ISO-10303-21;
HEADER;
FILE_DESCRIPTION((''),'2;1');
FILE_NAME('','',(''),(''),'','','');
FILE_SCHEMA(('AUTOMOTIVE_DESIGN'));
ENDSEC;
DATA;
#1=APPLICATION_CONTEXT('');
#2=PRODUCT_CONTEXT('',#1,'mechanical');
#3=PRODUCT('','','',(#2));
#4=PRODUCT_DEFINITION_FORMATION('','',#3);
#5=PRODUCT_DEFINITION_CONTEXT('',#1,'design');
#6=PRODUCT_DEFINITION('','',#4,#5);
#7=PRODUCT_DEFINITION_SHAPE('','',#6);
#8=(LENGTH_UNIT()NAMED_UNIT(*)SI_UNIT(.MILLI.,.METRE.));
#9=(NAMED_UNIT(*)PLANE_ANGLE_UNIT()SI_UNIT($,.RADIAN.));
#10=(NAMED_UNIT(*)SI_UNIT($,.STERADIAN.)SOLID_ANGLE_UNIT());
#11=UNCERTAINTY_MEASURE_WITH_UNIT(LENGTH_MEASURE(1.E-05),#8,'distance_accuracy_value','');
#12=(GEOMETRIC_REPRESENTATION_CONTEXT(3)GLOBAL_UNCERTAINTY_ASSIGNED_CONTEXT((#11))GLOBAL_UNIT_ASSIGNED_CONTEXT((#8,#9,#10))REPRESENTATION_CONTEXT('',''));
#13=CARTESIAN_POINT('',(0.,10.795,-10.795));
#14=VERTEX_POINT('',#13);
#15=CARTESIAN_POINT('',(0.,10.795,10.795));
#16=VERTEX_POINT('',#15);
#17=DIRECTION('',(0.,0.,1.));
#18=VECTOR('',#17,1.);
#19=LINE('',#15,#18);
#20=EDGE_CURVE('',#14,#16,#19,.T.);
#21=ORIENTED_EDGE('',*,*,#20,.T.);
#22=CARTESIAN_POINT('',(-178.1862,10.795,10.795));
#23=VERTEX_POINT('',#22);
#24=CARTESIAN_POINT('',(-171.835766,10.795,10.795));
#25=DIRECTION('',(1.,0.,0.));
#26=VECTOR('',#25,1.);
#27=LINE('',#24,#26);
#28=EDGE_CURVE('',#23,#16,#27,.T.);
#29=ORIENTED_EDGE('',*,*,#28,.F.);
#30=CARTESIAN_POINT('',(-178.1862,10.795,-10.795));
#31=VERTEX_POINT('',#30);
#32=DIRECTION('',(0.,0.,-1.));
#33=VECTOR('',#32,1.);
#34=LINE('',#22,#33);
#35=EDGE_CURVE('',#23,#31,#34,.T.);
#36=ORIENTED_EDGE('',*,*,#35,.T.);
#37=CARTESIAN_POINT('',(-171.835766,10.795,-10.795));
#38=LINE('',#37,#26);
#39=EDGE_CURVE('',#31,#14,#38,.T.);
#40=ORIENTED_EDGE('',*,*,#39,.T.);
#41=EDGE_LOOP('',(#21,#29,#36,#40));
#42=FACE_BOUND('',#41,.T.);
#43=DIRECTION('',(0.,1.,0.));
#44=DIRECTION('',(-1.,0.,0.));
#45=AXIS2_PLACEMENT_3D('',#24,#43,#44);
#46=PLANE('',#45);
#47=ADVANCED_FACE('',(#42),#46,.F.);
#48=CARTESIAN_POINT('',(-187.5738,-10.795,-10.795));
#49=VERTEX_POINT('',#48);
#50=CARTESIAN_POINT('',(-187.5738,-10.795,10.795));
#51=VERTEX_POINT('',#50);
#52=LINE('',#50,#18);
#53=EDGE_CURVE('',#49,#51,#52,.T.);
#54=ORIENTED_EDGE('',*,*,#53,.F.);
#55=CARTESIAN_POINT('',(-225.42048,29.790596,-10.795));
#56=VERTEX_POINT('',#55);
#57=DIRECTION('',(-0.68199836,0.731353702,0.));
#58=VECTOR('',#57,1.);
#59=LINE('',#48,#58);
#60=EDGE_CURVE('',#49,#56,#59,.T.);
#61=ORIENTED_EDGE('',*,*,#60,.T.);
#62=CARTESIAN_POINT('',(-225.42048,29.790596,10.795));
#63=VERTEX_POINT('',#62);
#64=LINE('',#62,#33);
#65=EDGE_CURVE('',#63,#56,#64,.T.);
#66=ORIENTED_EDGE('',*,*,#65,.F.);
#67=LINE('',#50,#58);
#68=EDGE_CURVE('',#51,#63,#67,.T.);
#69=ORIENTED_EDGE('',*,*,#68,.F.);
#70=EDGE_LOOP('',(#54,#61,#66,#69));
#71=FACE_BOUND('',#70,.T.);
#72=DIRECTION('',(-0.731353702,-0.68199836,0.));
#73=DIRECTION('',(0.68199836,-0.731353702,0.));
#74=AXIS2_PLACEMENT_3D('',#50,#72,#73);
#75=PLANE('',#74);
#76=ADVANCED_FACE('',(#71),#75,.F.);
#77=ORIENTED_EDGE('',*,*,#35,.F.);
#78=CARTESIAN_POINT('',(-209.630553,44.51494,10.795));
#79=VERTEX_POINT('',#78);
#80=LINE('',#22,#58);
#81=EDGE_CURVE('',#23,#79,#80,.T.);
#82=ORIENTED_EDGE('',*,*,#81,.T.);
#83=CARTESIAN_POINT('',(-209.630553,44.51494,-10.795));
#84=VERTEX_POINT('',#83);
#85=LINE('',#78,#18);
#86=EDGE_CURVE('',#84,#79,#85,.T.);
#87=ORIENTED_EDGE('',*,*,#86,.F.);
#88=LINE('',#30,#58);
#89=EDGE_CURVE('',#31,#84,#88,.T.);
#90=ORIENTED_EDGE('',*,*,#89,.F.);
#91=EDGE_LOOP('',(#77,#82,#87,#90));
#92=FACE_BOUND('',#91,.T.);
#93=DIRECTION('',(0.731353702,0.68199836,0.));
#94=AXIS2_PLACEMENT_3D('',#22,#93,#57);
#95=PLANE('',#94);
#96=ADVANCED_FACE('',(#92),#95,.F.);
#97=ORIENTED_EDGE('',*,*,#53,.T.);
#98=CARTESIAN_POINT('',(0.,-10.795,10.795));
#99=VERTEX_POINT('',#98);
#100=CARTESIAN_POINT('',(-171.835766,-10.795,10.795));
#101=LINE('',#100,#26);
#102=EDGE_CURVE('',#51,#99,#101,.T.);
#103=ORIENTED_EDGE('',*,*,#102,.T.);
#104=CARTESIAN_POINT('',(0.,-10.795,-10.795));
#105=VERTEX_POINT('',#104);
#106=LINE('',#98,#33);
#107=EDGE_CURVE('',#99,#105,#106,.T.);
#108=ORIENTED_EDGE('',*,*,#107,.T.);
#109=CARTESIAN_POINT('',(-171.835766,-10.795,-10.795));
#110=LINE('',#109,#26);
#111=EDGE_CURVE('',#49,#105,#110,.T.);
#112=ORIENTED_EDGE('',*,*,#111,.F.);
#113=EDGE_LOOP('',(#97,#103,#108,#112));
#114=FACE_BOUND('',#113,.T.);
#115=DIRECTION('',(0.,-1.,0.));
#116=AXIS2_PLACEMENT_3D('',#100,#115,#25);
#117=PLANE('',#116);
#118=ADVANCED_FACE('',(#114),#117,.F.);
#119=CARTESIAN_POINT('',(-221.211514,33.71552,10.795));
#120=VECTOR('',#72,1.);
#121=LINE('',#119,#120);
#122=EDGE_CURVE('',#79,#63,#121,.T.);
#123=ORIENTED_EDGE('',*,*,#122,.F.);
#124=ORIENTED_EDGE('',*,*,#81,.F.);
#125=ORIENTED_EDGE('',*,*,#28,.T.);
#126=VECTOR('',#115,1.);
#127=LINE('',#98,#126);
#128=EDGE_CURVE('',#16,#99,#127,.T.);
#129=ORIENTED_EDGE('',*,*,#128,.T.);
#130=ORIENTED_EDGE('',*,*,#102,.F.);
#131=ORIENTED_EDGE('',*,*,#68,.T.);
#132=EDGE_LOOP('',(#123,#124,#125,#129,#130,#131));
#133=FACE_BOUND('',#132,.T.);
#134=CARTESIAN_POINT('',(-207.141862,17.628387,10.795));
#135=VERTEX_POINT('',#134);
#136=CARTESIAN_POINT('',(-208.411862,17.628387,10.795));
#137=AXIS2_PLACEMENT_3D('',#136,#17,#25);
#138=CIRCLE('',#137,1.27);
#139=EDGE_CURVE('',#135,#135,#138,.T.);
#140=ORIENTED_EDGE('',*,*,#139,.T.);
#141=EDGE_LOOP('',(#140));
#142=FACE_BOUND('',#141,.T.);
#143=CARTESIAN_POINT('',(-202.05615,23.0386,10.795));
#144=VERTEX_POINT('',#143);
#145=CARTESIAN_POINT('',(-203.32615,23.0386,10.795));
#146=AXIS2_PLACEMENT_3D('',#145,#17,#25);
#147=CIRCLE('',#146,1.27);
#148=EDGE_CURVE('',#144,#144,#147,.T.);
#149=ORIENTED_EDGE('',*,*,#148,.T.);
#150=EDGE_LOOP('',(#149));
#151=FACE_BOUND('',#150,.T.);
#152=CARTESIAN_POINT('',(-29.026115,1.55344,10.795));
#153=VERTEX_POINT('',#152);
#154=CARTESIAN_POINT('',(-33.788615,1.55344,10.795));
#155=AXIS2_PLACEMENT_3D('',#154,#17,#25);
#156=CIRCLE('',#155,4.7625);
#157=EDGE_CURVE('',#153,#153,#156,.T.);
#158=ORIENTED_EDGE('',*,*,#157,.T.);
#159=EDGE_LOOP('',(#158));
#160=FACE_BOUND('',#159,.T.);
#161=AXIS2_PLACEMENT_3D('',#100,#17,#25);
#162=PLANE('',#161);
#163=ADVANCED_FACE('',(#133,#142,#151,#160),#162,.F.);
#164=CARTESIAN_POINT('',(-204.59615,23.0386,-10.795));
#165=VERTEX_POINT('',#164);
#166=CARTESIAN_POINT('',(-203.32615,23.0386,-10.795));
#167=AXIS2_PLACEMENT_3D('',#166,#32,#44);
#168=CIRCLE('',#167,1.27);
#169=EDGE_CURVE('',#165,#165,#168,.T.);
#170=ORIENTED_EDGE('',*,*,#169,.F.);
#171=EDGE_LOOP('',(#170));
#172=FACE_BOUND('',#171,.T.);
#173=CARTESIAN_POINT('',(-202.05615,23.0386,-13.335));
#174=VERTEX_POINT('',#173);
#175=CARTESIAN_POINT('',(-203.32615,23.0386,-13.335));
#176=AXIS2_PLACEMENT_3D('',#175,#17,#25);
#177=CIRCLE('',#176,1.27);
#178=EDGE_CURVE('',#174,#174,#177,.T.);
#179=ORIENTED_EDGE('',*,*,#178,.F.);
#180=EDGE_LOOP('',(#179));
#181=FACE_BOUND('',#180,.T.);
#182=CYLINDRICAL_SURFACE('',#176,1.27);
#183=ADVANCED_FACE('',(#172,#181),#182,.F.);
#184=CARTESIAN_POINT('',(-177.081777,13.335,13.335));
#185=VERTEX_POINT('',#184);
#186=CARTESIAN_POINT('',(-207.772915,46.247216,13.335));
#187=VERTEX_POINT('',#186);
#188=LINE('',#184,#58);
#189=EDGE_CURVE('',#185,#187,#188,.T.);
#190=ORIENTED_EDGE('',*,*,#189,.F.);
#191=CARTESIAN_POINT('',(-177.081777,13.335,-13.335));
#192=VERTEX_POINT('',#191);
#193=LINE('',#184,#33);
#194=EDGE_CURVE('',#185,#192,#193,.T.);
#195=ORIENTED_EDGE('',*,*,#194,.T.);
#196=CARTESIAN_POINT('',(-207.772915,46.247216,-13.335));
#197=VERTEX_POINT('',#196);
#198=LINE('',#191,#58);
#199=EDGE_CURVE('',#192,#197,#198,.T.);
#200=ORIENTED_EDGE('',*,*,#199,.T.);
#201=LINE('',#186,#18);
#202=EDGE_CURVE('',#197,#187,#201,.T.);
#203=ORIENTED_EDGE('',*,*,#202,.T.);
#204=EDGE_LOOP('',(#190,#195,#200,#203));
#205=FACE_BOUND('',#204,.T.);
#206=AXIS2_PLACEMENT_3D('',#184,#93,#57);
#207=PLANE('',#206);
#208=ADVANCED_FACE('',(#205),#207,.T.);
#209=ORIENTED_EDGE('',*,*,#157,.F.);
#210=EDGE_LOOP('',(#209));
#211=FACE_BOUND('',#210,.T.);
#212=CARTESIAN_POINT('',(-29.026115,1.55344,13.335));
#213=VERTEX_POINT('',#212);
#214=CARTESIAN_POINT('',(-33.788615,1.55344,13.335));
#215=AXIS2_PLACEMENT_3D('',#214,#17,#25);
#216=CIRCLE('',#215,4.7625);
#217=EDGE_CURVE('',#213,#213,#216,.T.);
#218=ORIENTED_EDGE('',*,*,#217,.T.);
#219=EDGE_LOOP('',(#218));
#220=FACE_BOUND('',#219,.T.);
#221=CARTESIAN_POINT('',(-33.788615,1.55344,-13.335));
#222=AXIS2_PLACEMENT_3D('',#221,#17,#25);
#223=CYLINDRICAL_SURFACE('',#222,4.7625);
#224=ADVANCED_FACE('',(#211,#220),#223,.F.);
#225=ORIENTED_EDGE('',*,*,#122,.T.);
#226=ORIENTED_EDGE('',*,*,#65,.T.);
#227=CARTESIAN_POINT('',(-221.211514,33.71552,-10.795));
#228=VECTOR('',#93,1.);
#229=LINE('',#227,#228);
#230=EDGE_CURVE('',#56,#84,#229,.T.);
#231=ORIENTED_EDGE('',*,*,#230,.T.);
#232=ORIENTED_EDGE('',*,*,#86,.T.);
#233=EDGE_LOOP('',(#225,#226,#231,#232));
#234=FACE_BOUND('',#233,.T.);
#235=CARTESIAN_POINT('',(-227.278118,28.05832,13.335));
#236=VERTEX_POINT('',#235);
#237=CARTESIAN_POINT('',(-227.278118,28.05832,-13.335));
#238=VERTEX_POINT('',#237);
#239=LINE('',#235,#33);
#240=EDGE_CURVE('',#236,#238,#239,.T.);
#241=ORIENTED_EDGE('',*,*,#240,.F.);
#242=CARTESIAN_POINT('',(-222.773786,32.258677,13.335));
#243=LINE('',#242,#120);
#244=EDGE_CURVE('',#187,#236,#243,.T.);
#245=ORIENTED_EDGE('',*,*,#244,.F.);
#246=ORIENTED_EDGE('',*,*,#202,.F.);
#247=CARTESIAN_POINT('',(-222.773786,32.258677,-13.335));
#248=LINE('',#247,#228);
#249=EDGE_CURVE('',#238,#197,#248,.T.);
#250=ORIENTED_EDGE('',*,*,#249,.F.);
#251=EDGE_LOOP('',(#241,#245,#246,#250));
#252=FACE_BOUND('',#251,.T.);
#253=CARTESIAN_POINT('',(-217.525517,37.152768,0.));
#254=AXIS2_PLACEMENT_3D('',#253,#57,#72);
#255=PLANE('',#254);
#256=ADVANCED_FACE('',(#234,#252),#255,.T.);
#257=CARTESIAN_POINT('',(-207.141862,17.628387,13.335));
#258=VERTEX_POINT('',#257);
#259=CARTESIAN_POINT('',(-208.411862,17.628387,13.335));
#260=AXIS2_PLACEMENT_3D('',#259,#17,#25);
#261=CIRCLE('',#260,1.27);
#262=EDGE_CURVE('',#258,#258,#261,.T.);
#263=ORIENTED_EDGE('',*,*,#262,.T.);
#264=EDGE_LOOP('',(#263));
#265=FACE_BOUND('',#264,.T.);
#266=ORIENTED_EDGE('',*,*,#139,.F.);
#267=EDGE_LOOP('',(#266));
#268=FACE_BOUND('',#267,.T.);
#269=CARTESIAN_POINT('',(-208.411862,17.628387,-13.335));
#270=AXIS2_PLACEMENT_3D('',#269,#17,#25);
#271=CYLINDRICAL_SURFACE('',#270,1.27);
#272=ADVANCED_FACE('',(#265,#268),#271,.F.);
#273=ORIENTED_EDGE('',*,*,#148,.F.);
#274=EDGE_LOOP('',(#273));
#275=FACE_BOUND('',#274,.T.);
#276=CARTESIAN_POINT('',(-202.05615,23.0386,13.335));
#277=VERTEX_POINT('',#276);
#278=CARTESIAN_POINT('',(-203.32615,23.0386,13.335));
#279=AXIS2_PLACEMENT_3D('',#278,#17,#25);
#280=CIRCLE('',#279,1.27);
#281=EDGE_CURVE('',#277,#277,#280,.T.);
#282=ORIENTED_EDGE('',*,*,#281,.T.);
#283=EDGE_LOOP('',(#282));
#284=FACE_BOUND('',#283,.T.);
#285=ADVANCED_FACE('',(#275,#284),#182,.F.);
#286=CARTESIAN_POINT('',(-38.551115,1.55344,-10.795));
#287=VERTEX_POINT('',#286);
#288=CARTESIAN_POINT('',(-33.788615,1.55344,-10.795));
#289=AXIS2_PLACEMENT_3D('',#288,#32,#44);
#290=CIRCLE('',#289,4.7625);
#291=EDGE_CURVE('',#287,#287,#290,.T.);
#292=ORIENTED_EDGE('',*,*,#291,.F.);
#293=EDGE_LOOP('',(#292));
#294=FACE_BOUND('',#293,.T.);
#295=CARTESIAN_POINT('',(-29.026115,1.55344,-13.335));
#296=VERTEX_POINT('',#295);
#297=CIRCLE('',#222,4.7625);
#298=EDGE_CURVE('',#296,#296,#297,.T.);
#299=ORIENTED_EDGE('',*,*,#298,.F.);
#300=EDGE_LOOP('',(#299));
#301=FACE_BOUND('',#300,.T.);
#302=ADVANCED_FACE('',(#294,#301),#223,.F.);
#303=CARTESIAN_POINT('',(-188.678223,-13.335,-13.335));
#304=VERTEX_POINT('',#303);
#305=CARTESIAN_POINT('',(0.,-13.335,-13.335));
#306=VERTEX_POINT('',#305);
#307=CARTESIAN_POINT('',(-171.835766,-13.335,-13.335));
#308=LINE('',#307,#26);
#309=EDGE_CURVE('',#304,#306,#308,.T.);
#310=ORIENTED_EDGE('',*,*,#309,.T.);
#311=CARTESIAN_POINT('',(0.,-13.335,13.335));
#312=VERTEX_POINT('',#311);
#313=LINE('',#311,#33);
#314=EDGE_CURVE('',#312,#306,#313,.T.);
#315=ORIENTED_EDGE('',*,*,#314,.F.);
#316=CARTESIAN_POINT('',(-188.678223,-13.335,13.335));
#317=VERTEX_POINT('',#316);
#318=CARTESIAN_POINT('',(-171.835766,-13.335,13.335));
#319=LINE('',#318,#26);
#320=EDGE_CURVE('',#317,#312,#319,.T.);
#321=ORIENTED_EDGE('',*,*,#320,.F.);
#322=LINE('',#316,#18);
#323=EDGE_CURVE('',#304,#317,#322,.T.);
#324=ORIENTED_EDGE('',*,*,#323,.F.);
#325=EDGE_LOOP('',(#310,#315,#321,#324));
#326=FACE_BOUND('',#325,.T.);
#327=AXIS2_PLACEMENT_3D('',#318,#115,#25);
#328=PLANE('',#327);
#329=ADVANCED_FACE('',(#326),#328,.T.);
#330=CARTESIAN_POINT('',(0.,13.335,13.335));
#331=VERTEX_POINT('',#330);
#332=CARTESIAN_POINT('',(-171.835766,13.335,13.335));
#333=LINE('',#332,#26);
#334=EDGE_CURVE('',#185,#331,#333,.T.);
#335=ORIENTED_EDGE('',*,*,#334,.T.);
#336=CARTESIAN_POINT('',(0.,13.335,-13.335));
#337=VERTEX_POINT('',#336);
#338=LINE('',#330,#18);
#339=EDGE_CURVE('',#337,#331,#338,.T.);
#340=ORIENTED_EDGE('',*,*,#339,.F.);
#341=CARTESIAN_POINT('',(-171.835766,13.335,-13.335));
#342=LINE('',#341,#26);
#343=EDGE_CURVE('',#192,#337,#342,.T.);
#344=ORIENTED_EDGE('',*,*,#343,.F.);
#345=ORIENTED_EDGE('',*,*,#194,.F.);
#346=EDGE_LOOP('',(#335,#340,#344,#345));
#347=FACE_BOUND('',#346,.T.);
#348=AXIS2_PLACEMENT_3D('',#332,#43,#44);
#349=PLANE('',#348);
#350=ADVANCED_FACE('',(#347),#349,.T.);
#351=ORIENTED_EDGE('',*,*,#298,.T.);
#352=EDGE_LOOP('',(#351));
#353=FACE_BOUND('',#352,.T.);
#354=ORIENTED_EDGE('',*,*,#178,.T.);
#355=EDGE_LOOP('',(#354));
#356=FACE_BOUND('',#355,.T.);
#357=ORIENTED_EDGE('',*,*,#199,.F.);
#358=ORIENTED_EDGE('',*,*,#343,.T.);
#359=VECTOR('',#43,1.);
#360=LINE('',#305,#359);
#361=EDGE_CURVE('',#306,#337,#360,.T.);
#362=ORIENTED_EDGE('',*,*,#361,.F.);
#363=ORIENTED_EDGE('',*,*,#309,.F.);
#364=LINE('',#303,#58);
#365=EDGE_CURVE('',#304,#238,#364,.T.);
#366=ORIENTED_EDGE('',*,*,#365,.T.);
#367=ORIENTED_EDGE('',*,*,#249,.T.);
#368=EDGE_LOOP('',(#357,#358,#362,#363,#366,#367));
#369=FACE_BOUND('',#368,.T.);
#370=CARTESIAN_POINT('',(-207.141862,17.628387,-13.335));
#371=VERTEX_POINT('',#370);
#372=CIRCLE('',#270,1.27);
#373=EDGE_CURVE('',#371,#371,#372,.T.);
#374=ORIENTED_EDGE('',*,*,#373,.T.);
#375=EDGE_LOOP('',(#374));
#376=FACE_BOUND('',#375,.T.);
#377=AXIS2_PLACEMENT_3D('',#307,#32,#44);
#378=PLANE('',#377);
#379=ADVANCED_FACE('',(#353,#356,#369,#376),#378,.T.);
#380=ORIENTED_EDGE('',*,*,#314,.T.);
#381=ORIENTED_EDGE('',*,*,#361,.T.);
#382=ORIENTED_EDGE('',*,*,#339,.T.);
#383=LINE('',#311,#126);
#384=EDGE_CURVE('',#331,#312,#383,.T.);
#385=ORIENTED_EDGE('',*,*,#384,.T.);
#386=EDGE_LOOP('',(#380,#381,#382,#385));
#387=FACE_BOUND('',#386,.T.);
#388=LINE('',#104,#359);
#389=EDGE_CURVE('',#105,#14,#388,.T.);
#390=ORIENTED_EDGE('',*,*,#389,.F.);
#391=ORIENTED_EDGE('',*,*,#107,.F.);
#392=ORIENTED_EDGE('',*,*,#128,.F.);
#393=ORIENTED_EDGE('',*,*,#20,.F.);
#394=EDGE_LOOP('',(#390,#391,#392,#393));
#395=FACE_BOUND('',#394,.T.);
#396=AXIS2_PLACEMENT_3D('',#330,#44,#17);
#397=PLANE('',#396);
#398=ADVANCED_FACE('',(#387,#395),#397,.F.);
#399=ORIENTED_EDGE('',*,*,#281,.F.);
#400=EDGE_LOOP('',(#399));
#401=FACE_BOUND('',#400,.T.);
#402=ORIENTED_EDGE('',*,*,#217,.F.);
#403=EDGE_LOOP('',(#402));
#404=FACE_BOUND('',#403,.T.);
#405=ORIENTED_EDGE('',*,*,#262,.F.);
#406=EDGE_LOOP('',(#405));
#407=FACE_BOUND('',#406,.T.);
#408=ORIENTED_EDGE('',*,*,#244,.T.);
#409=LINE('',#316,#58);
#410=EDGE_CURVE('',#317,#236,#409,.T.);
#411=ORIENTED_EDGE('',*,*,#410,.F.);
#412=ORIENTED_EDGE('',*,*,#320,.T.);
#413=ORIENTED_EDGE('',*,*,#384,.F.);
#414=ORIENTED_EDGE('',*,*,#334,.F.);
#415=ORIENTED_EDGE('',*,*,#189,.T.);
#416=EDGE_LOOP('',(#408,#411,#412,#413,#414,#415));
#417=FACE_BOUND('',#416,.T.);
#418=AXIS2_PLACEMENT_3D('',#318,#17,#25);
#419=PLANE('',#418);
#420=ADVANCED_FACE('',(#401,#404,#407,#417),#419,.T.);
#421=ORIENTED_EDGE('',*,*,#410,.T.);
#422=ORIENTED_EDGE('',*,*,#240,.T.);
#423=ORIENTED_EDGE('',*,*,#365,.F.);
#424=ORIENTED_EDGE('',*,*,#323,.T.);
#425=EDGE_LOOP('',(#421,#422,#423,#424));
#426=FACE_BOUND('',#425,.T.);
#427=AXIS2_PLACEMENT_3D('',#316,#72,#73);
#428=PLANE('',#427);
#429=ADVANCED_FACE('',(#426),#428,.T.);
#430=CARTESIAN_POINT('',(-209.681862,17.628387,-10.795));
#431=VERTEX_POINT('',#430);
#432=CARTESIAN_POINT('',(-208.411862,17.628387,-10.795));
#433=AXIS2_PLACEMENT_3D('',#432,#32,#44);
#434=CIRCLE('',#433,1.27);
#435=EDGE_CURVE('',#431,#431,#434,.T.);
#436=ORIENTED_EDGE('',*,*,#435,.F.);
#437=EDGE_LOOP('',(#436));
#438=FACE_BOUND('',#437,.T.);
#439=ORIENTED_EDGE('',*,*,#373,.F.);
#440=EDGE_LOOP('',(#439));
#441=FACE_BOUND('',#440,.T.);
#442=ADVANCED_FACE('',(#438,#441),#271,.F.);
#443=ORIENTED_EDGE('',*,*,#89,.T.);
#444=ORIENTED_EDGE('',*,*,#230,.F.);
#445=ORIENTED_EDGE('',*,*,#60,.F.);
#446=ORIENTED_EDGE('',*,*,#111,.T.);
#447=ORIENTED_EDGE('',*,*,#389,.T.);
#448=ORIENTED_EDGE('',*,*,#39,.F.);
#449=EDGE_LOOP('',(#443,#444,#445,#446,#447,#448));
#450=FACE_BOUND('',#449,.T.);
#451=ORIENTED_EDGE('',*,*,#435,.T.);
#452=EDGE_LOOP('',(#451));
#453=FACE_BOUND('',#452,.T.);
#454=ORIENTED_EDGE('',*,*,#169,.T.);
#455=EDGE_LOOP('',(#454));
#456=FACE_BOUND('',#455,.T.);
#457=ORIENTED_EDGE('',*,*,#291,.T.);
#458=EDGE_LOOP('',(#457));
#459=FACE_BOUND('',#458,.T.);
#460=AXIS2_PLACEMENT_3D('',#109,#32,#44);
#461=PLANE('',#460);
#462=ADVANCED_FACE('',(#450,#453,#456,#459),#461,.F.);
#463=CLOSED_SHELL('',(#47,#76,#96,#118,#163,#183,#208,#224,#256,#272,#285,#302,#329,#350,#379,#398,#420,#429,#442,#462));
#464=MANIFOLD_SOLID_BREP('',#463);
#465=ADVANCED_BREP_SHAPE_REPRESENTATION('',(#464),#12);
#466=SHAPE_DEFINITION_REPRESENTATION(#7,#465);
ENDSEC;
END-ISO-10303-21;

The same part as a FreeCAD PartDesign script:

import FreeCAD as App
import Part
import Sketcher

V = App.Vector
Q = App.Units.Quantity


def add_polygon(sketch, points):
    """Adds a closed chain of lines whose ends are joined by coincident constraints."""
    first, n = sketch.GeometryCount, len(points)
    for a, b in zip(points, points[1:] + points[:1]):
        sketch.addGeometry(Part.LineSegment(App.Vector(*a, 0), App.Vector(*b, 0)), False)
    for i in range(n):
        sketch.addConstraint(Sketcher.Constraint("Coincident", first + i, 2, first + (i + 1) % n, 1))

doc = App.newDocument("Part")
body = doc.addObject("PartDesign::Body", "Body")

# Sketch on YZ plane
sketch1 = body.newObject("Sketcher::SketchObject", "Sketch")
sketch1.AttachmentSupport = (doc.getObject("YZ_Plane"), [""])
sketch1.MapMode = "FlatFace"
add_polygon(sketch1, [(13, 13), (-13, 13), (-13, -13), (13, -13)])  # lines 0-3
add_polygon(sketch1, [(-11, -11), (-11, 11), (11, 11), (11, -11)])  # lines 4-7
sketch1.addConstraint(Sketcher.Constraint("Horizontal", 0))
sketch1.addConstraint(Sketcher.Constraint("Vertical", 1))
sketch1.addConstraint(Sketcher.Constraint("Horizontal", 2))
sketch1.addConstraint(Sketcher.Constraint("Vertical", 3))
sketch1.addConstraint(Sketcher.Constraint("Vertical", 4))
sketch1.addConstraint(Sketcher.Constraint("Horizontal", 5))
sketch1.addConstraint(Sketcher.Constraint("Vertical", 6))
sketch1.addConstraint(Sketcher.Constraint("Horizontal", 7))
sketch1.addConstraint(Sketcher.Constraint("Symmetric", 0, 2, 2, 2, -1, 1))
sketch1.addConstraint(Sketcher.Constraint("Symmetric", 4, 2, 6, 2, -1, 1))
sketch1.addConstraint(Sketcher.Constraint("Equal", 2, 1))
sketch1.addConstraint(Sketcher.Constraint("Equal", 7, 4))
sketch1.addConstraint(Sketcher.Constraint("DistanceX", 0, 2, 0, 1, Q("1.05 in")))
sketch1.addConstraint(Sketcher.Constraint("DistanceX", 5, 1, 5, 2, Q("0.85 in")))

# Sketch on XY plane
sketch2 = body.newObject("Sketcher::SketchObject", "Sketch001")
sketch2.AttachmentSupport = (doc.getObject("XY_Plane"), [""])
sketch2.MapMode = "FlatFace"
sketch2.addGeometry(Part.LineSegment(V(0, 0, 0), V(-183, 0, 0)), False)
sketch2.addGeometry(Part.LineSegment(V(-183, 0, 0), V(-190, 8, 0)), False)
sketch2.addGeometry(Part.LineSegment(V(-190, 8, 0), V(-218, 37, 0)), False)
sketch2.addConstraint(Sketcher.Constraint("Coincident", 0, 2, 1, 1))
sketch2.addConstraint(Sketcher.Constraint("Coincident", 1, 2, 2, 1))
sketch2.addConstraint(Sketcher.Constraint("Horizontal", 0))
sketch2.addConstraint(Sketcher.Constraint("Coincident", 0, 1, -1, 1))
sketch2.addConstraint(Sketcher.Constraint("Parallel", 1, 2))
sketch2.addConstraint(Sketcher.Constraint("DistanceX", 0, 2, 0, 1, Q("7.2 in")))
sketch2.addConstraint(Sketcher.Constraint("Angle", 1, Q("133 deg")))
sketch2.addConstraint(Sketcher.Constraint("DistanceX", 1, 2, -1, 1, Q("190.41215 mm")))
sketch2.addConstraint(Sketcher.Constraint("DistanceY", -1, 1, 2, 2, Q("37.152768 mm")))
doc.recompute()

additivepipe = body.newObject("PartDesign::AdditivePipe", "AdditivePipe")
additivepipe.Profile = sketch1
additivepipe.Spine = (sketch2, ["Edge1", "Edge2", "Edge3"])
additivepipe.Transition = "Right corner"

# Sketch on XY plane
sketch3 = body.newObject("Sketcher::SketchObject", "Sketch002")
sketch3.AttachmentSupport = (doc.getObject("XY_Plane"), [""])
sketch3.MapMode = "FlatFace"
sketch3.AttachmentOffset = App.Placement(V(0, 0, 0.525 * 25.4), App.Rotation())
sketch3.addGeometry(Part.Circle(V(-33.8, 1.6, 0), V(0, 0, 1), 4.8), False)
sketch3.addConstraint(Sketcher.Constraint("Diameter", 0, Q("0.375 in")))
sketch3.addConstraint(Sketcher.Constraint("DistanceY", -1, 1, 0, 3, Q("1.55344 mm")))
sketch3.addConstraint(Sketcher.Constraint("DistanceX", 0, 3, -1, 1, Q("33.788615 mm")))
pocket1 = body.newObject("PartDesign::Pocket", "Pocket")
pocket1.Profile = sketch3
pocket1.Type = "ThroughAll"

# Sketch on XY plane
sketch4 = body.newObject("Sketcher::SketchObject", "Sketch003")
sketch4.AttachmentSupport = (doc.getObject("XY_Plane"), [""])
sketch4.MapMode = "FlatFace"
sketch4.AttachmentOffset = App.Placement(V(0, 0, 0.525 * 25.4), App.Rotation())
sketch4.addGeometry(Part.Circle(V(-203.3, 23, 0), V(0, 0, 1), 1.3), False)
sketch4.addGeometry(Part.Circle(V(-208.4, 17.6, 0), V(0, 0, 1), 1.3), False)
sketch4.addConstraint(Sketcher.Constraint("Equal", 0, 1))
sketch4.addConstraint(Sketcher.Constraint("Diameter", 0, Q("0.1 in")))
sketch4.addConstraint(Sketcher.Constraint("DistanceY", -1, 1, 0, 3, Q("23.0386 mm")))
sketch4.addConstraint(Sketcher.Constraint("DistanceX", 0, 3, -1, 1, Q("203.32615 mm")))
sketch4.addConstraint(Sketcher.Constraint("DistanceX", 1, 3, -1, 1, Q("208.411862 mm")))
sketch4.addConstraint(Sketcher.Constraint("DistanceY", -1, 1, 1, 3, Q("17.628387 mm")))
pocket2 = body.newObject("PartDesign::Pocket", "Pocket001")
pocket2.Profile = sketch4
pocket2.Type = "ThroughAll"

doc.recompute()
